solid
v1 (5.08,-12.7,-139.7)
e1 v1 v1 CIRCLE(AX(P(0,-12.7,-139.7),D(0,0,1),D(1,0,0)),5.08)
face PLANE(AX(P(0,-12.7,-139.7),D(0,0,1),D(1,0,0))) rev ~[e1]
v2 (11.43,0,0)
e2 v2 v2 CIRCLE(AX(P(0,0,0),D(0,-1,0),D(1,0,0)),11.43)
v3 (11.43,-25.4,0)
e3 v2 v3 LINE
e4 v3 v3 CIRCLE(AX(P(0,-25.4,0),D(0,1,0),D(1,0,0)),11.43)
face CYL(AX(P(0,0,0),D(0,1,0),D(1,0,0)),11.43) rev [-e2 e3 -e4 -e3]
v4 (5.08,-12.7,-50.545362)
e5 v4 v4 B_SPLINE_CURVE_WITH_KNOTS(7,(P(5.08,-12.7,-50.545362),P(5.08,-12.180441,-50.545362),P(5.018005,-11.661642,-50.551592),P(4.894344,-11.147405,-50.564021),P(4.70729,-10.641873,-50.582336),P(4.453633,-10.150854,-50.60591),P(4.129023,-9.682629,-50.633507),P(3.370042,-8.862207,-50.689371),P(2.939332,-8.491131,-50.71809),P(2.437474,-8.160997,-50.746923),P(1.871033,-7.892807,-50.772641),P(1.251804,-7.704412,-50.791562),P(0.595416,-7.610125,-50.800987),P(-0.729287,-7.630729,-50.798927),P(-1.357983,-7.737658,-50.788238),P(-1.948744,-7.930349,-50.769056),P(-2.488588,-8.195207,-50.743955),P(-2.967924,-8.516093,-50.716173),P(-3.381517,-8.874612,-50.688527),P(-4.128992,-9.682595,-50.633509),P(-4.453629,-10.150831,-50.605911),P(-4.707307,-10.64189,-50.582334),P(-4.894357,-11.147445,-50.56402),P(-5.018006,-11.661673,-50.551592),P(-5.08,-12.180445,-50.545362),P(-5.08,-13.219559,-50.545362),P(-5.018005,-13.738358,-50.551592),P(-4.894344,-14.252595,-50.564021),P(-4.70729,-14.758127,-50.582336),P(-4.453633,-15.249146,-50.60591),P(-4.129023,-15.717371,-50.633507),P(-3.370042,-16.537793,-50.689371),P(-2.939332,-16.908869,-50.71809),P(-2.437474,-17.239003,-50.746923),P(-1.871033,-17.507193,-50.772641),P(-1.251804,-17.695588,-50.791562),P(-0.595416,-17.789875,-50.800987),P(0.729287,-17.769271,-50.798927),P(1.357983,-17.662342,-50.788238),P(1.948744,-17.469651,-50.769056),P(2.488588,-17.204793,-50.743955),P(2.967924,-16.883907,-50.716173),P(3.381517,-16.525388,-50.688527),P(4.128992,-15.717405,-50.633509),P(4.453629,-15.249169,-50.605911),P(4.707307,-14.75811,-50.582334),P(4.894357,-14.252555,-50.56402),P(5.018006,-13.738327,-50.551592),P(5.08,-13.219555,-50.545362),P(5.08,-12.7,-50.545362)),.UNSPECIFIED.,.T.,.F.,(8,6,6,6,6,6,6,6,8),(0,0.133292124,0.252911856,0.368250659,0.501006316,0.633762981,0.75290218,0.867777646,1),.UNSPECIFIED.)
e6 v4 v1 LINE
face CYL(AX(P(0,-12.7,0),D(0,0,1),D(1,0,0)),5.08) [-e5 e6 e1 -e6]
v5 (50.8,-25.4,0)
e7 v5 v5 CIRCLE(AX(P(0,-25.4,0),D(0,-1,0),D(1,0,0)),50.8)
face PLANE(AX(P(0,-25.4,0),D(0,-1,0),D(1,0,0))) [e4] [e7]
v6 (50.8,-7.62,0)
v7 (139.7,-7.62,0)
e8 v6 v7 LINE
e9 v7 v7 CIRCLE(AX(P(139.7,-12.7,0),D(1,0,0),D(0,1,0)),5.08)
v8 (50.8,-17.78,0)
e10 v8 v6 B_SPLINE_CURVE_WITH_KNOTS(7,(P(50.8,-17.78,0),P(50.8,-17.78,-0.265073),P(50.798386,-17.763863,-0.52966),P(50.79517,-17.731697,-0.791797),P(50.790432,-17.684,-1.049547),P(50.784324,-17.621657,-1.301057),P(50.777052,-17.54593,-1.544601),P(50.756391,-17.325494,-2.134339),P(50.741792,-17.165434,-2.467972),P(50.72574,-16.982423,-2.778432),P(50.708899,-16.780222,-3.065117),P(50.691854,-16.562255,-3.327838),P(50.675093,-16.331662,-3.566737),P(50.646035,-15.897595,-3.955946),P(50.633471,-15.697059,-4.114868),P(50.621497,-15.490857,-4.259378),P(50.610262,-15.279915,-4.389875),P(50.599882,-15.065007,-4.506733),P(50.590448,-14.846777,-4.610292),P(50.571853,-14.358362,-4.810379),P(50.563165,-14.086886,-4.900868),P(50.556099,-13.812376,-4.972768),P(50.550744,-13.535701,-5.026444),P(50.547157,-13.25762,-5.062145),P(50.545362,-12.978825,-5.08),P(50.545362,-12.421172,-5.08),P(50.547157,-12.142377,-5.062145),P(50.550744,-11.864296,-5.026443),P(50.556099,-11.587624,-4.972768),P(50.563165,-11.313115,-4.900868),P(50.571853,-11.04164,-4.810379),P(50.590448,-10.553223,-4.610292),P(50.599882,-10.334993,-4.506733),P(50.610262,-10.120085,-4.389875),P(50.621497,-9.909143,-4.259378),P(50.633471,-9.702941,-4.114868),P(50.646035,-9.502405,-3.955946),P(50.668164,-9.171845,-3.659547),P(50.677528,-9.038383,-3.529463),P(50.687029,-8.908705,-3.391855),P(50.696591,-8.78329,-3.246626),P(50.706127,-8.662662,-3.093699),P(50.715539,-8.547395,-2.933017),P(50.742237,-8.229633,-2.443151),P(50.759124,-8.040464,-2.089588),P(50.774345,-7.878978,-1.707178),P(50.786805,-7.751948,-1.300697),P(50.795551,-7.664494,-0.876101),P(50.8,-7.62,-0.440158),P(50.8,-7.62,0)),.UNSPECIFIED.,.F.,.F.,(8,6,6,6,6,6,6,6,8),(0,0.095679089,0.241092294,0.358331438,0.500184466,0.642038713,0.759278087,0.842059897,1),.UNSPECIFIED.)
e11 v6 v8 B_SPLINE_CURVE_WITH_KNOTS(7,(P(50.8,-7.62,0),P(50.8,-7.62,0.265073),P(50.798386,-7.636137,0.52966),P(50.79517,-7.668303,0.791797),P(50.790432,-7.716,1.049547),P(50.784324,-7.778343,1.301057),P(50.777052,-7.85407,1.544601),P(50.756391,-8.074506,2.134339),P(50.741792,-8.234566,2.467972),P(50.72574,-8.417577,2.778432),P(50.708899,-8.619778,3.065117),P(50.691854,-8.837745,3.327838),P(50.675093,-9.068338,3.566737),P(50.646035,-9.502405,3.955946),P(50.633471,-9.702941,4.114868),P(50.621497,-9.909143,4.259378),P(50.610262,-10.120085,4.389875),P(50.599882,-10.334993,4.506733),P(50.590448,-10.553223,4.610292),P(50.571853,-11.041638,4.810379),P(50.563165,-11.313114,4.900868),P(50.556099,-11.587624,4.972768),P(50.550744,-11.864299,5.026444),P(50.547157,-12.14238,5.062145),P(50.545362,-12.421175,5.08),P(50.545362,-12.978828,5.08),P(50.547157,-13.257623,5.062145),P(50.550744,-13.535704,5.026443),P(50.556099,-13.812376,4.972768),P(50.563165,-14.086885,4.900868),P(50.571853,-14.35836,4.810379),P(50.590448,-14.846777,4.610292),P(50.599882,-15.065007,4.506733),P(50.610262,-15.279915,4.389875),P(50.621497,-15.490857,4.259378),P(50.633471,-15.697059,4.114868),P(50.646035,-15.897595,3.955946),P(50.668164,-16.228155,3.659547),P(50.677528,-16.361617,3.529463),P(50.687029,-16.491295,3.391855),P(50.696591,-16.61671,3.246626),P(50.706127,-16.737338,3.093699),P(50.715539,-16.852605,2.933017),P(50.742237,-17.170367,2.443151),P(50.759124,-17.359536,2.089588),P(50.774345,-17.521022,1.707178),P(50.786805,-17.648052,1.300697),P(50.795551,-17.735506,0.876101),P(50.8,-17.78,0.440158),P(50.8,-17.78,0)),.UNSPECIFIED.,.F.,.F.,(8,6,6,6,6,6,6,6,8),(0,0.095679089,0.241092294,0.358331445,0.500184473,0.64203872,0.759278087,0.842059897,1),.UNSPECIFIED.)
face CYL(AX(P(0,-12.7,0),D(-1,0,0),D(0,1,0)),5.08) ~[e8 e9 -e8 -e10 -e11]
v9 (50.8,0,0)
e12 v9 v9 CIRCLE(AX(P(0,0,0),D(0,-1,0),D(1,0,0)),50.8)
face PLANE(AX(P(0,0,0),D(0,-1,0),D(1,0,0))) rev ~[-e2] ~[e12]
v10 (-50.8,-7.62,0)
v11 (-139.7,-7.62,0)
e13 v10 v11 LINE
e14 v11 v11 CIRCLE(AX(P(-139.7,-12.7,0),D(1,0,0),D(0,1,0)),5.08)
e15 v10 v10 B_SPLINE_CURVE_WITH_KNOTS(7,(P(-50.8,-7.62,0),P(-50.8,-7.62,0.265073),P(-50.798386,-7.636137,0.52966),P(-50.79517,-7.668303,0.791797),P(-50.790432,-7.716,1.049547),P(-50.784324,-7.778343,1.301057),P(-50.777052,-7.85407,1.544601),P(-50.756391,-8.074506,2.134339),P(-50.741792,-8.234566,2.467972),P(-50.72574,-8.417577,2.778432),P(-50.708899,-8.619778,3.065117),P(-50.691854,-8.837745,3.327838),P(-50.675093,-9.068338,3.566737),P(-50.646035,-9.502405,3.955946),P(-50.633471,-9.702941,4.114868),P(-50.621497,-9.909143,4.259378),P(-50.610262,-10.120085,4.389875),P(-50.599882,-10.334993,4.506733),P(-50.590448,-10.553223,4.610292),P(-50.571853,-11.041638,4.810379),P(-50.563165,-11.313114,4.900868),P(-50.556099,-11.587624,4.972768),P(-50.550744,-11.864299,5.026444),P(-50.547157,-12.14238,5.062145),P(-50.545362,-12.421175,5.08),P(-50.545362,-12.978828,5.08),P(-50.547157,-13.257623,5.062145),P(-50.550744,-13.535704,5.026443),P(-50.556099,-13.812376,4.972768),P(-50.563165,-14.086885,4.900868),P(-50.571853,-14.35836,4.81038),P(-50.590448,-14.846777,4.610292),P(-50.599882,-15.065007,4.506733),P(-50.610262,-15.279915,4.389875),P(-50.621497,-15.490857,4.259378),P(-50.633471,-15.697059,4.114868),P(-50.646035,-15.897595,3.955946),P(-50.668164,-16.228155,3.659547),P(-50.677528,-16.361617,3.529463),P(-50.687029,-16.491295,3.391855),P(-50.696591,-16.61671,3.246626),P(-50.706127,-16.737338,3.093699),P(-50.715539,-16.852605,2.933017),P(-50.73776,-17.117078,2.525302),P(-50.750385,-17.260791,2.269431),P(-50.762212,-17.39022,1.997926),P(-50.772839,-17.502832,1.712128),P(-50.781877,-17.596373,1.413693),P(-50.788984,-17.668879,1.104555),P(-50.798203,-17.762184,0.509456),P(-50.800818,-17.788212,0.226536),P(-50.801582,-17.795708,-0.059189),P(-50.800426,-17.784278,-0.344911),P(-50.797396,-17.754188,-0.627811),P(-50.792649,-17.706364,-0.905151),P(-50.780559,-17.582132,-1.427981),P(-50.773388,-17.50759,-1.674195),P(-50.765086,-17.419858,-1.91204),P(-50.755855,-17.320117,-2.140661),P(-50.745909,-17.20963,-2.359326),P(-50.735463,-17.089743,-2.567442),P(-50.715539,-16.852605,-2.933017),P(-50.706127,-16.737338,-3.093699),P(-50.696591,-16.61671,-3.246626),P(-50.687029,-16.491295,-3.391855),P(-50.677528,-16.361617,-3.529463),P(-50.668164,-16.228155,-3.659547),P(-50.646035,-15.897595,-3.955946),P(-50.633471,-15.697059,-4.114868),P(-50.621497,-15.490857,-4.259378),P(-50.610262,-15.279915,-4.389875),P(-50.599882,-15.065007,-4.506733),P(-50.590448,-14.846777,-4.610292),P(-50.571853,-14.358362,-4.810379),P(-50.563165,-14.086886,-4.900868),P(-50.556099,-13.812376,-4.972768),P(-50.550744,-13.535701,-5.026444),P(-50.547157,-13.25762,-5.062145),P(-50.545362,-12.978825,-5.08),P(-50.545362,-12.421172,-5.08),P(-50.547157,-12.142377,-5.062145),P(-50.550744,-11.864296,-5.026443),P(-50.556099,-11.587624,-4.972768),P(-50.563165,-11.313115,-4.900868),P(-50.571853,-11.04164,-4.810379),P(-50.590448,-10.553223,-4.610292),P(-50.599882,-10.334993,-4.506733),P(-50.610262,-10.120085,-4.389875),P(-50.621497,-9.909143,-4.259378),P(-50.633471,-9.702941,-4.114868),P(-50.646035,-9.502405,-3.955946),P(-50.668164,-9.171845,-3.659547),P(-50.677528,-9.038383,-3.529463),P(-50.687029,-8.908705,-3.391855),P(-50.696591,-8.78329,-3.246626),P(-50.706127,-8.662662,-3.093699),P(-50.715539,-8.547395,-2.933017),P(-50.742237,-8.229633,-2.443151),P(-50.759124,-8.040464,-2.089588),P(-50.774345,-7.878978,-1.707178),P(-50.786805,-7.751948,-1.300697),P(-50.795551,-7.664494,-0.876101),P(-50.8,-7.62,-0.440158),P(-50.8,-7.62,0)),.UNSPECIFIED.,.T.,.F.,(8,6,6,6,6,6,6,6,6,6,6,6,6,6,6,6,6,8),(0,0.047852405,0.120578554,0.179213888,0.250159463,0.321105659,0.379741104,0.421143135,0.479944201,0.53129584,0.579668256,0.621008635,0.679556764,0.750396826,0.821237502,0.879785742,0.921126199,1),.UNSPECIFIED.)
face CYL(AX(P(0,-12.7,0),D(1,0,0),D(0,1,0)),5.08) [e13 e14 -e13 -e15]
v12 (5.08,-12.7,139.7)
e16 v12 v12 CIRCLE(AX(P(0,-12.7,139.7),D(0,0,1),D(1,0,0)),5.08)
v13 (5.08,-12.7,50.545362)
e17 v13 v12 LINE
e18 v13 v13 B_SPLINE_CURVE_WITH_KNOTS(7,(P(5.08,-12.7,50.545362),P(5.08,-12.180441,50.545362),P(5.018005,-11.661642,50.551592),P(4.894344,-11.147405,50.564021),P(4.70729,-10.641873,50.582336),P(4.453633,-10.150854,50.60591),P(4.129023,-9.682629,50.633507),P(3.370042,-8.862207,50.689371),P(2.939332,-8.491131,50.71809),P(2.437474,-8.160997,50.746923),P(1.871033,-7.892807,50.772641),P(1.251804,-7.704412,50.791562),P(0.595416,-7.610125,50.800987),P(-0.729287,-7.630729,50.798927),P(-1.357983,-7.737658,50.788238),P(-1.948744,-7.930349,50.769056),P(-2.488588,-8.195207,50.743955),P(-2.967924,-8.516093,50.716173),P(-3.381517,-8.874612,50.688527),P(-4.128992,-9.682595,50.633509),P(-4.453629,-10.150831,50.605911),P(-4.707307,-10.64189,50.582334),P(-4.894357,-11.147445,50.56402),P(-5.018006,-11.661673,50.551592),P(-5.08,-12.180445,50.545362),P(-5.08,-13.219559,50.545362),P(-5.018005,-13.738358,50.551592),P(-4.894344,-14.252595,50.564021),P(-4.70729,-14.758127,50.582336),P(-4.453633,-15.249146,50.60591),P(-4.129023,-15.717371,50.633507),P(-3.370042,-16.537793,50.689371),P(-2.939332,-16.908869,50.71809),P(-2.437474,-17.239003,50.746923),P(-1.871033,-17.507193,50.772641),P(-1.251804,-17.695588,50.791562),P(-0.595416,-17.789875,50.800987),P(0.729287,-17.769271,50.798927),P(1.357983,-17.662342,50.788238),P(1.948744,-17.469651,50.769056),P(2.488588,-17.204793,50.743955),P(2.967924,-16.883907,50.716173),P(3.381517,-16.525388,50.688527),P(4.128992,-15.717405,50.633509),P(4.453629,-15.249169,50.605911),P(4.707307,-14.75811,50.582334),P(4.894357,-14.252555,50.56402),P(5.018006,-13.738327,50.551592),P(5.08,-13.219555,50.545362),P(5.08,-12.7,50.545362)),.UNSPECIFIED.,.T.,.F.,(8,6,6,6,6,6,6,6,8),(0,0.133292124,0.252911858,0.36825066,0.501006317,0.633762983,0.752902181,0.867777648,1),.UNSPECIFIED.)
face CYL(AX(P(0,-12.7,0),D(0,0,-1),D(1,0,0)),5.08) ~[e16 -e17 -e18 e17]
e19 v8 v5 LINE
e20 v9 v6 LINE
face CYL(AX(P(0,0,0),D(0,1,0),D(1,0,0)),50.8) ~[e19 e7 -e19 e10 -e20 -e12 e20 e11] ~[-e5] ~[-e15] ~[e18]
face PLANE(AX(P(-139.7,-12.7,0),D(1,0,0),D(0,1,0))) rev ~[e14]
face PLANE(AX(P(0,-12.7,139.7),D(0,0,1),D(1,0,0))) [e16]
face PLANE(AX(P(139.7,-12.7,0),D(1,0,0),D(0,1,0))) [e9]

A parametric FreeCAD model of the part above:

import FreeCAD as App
import Part
import Sketcher
Q = App.Units.Quantity

doc = App.newDocument("Part")
params = doc.addObject("Spreadsheet::Sheet", "Params")
for row, (alias, value) in enumerate([
    ("sketch1_diameter", "4 in"),
    ("pad1_length", "1 in"),
    ("sketch2_diameter", "0.4 in"),
    ("pad2_length", "5.5 in"),
    ("pad2_length2", "5.5 in"),
    ("sketch3_diameter", "0.4 in"),
    ("pad3_length", "5.5 in"),
    ("pad3_length2", "5.5 in"),
    ("sketch4_diameter", "0.9 in"),
    ("pocket1_length", "1.1 in"),
], start=1):
    params.set(f"A{row}", alias)
    params.set(f"B{row}", "=" + value)
    params.setAlias(f"B{row}", alias)

body = doc.addObject("PartDesign::Body", "Body")

sketch1 = doc.addObject("Sketcher::SketchObject", "Sketch")
body.addObject(sketch1)
sketch1.AttachmentSupport = (doc.XZ_Plane, [""])
sketch1.MapMode = "FlatFace"
sketch1.addGeometry(Part.Circle(App.Vector(0, 0, 0), App.Vector(0, 0, 1), 51), False)
sketch1.addConstraint([
    Sketcher.Constraint("Coincident", 0, 3, -1, 1),
    Sketcher.Constraint("Diameter", 0, Q("4 in")),
])
sketch1.setExpression("Constraints[1]", "Params.sketch1_diameter")
pad1 = doc.addObject("PartDesign::Pad", "Pad")
body.addObject(pad1)
pad1.Profile = sketch1
pad1.setExpression("Length", "Params.pad1_length")

sketch2 = doc.addObject("Sketcher::SketchObject", "Sketch001")
body.addObject(sketch2)
sketch2.AttachmentSupport = (doc.YZ_Plane, [""])
sketch2.MapMode = "FlatFace"
sketch2.addGeometry(Part.Circle(App.Vector(-13, 0, 0), App.Vector(0, 0, 1), 5), False)
sketch2.addConstraint([
    Sketcher.Constraint("PointOnObject", 0, 3, -1),
    Sketcher.Constraint("Diameter", 0, Q("0.4 in")),
    Sketcher.Constraint("DistanceX", 0, 3, -1, 1, Q("0.5 in")),
])
sketch2.setExpression("Constraints[1]", "Params.sketch2_diameter")
pad2 = doc.addObject("PartDesign::Pad", "Pad001")
body.addObject(pad2)
pad2.Profile = sketch2
pad2.Type = "TwoLengths"
pad2.setExpression("Length", "Params.pad2_length")
pad2.setExpression("Length2", "Params.pad2_length2")

sketch3 = doc.addObject("Sketcher::SketchObject", "Sketch002")
body.addObject(sketch3)
sketch3.AttachmentSupport = (doc.XY_Plane, [""])
sketch3.MapMode = "FlatFace"
sketch3.addGeometry(Part.Circle(App.Vector(0, -13, 0), App.Vector(0, 0, 1), 5), False)
sketch3.addConstraint([
    Sketcher.Constraint("PointOnObject", 0, 3, -2),
    Sketcher.Constraint("Diameter", 0, Q("0.4 in")),
    Sketcher.Constraint("DistanceY", 0, 3, -1, 1, Q("0.5 in")),
])
sketch3.setExpression("Constraints[1]", "Params.sketch3_diameter")
pad3 = doc.addObject("PartDesign::Pad", "Pad002")
body.addObject(pad3)
pad3.Profile = sketch3
pad3.Type = "TwoLengths"
pad3.setExpression("Length", "Params.pad3_length")
pad3.setExpression("Length2", "Params.pad3_length2")

sketch4 = doc.addObject("Sketcher::SketchObject", "Sketch003")
body.addObject(sketch4)
sketch4.AttachmentSupport = (doc.XZ_Plane, [""])
sketch4.MapMode = "FlatFace"
sketch4.addGeometry(Part.Circle(App.Vector(0, 0, 0), App.Vector(0, 0, 1), 11), False)
sketch4.addConstraint([
    Sketcher.Constraint("Coincident", 0, 3, -1, 1),
    Sketcher.Constraint("Diameter", 0, Q("0.9 in")),
])
sketch4.setExpression("Constraints[1]", "Params.sketch4_diameter")
pocket1 = doc.addObject("PartDesign::Pocket", "Pocket")
body.addObject(pocket1)
pocket1.Profile = sketch4
pocket1.setExpression("Length", "Params.pocket1_length")
pocket1.Reversed = True

doc.recompute()
